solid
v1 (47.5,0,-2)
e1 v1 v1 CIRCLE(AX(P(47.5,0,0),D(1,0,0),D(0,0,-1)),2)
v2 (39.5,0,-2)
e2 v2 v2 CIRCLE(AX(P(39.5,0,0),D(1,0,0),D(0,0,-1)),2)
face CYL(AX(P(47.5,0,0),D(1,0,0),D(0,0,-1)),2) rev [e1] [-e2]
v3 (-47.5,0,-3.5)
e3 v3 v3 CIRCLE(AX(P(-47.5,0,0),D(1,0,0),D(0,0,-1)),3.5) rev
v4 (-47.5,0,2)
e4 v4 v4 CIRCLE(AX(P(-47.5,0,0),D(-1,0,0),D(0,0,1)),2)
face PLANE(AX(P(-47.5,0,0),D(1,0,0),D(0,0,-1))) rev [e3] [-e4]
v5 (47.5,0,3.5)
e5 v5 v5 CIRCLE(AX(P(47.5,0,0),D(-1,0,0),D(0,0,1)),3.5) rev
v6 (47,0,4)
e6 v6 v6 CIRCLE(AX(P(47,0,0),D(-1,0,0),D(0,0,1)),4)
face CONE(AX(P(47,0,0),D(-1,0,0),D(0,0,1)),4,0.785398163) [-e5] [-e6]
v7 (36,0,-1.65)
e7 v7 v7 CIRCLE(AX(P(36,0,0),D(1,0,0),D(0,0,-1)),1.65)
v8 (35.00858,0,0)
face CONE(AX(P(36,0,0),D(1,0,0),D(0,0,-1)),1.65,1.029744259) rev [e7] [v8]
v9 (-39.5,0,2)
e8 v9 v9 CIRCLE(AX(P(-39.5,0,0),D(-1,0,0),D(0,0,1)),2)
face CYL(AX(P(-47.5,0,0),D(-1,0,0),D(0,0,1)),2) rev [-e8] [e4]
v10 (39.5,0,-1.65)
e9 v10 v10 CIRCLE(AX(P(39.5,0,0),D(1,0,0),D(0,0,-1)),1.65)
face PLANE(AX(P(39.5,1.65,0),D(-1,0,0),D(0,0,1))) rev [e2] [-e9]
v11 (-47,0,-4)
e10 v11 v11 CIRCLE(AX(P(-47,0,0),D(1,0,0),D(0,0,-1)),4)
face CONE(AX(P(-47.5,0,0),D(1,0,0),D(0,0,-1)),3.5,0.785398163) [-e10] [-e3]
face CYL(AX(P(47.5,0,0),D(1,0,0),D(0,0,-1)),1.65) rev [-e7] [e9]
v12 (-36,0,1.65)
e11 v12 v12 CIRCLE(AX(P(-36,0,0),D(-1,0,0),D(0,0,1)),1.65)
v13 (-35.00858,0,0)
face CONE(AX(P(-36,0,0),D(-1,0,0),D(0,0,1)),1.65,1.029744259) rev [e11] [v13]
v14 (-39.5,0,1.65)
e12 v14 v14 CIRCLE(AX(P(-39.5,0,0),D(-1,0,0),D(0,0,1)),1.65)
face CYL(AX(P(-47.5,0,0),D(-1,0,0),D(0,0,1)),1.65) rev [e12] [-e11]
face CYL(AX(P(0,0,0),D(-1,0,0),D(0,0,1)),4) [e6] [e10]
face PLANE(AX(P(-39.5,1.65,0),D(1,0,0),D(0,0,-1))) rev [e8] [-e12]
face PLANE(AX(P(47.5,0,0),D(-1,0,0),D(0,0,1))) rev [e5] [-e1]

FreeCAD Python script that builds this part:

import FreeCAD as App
import Part
import Sketcher

V = App.Vector
Q = App.Units.Quantity


def edges_at(feature, points):
    """Names of the edges that pass closest to the given points."""
    edges = feature.Shape.Edges
    near = lambda p: min(range(len(edges)), key=lambda i: edges[i].distToShape(Part.Vertex(*p))[0])
    return sorted({f"Edge{near(p) + 1}" for p in points})

doc = App.newDocument("Part")
params = doc.addObject("Spreadsheet::Sheet", "Params")
for row, (alias, value) in enumerate([
    ("sketch1_width", "95 mm"),
    ("sketch1_height", "4 mm"),
    ("revolution_angle", "360 deg"),
    ("sketch2_diameter", "3.3 mm"),
    ("hole_diameter", "3.3 mm"),
    ("hole_depth", "11.5 mm"),
    ("hole_cbore_diameter", "4 mm"),
    ("hole_cbore_depth", "8 mm"),
    ("sketch3_diameter", "3.3 mm"),
    ("hole2_diameter", "3.3 mm"),
    ("hole2_depth", "11.5 mm"),
    ("hole2_cbore_diameter", "4 mm"),
    ("hole2_cbore_depth", "8 mm"),
    ("chamfer_size", "0.5 mm"),
], start=1):
    params.set(f"A{row}", alias)
    params.set(f"B{row}", "=" + value)
    params.setAlias(f"B{row}", alias)

body = doc.addObject("PartDesign::Body", "Body")

# Sketch on XY plane
sketch1 = body.newObject("Sketcher::SketchObject", "Sketch")
sketch1.AttachmentSupport = (doc.getObject("XY_Plane"), [""])
sketch1.MapMode = "FlatFace"
sketch1.addGeometry(Part.LineSegment(V(-47.5, 4, 0), V(-47.5, 0, 0)), False)
sketch1.addGeometry(Part.LineSegment(V(-47.5, 0, 0), V(47.5, 0, 0)), False)
sketch1.addGeometry(Part.LineSegment(V(47.5, 0, 0), V(47.5, 4, 0)), False)
sketch1.addGeometry(Part.LineSegment(V(47.5, 4, 0), V(-47.5, 4, 0)), False)
sketch1.addConstraint(Sketcher.Constraint("Coincident", 0, 2, 1, 1))
sketch1.addConstraint(Sketcher.Constraint("Coincident", 1, 2, 2, 1))
sketch1.addConstraint(Sketcher.Constraint("Coincident", 2, 2, 3, 1))
sketch1.addConstraint(Sketcher.Constraint("Coincident", 3, 2, 0, 1))
sketch1.addConstraint(Sketcher.Constraint("Vertical", 0))
sketch1.addConstraint(Sketcher.Constraint("Horizontal", 1))
sketch1.addConstraint(Sketcher.Constraint("Vertical", 2))
sketch1.addConstraint(Sketcher.Constraint("Horizontal", 3))
sketch1.addConstraint(Sketcher.Constraint("Symmetric", 0, 2, 1, 2, -1, 1))
sketch1.addConstraint(Sketcher.Constraint("DistanceX", 1, 1, 1, 2, Q("95 mm")))
sketch1.addConstraint(Sketcher.Constraint("DistanceY", 0, 2, 0, 1, Q("4 mm")))
sketch1.setExpression("Constraints[9]", "Params.sketch1_width")
sketch1.setExpression("Constraints[10]", "Params.sketch1_height")
revolution = body.newObject("PartDesign::Revolution", "Revolution")
revolution.Profile = sketch1
revolution.ReferenceAxis = (sketch1, ["H_Axis"])
revolution.setExpression("Angle", "Params.revolution_angle")

# Sketch on YZ plane
sketch2 = body.newObject("Sketcher::SketchObject", "Sketch001")
sketch2.AttachmentSupport = (doc.getObject("YZ_Plane"), [""])
sketch2.MapMode = "FlatFace"
sketch2.AttachmentOffset = App.Placement(V(0, 0, 47.5), App.Rotation())
sketch2.addGeometry(Part.Circle(V(0, 0, 0), V(0, 0, 1), 1.65), False)
sketch2.addConstraint(Sketcher.Constraint("Coincident", 0, 3, -1, 1))
sketch2.addConstraint(Sketcher.Constraint("Diameter", 0, Q("3.3 mm")))
sketch2.setExpression("Constraints[1]", "Params.sketch2_diameter")
doc.recompute()
hole = body.newObject("PartDesign::Hole", "Hole")
hole.Profile = sketch2
hole.ThreadType = "None"
hole.setExpression("Diameter", "Params.hole_diameter")
hole.DepthType = "Dimension"
hole.setExpression("Depth", "Params.hole_depth")
hole.DrillPoint = "Angled"
hole.DrillPointAngle = 118
hole.HoleCutType = "Counterbore"
hole.setExpression("HoleCutDiameter", "Params.hole_cbore_diameter")
hole.setExpression("HoleCutDepth", "Params.hole_cbore_depth")

# Sketch on YZ plane
sketch3 = body.newObject("Sketcher::SketchObject", "Sketch002")
sketch3.AttachmentSupport = (doc.getObject("YZ_Plane"), [""])
sketch3.MapMode = "FlatFace"
sketch3.AttachmentOffset = App.Placement(V(0, 0, -47.5), App.Rotation())
sketch3.addGeometry(Part.Circle(V(0, 0, 0), V(0, 0, 1), 1.65), False)
sketch3.addConstraint(Sketcher.Constraint("Coincident", 0, 3, -1, 1))
sketch3.addConstraint(Sketcher.Constraint("Diameter", 0, Q("3.3 mm")))
sketch3.setExpression("Constraints[1]", "Params.sketch3_diameter")
doc.recompute()
hole2 = body.newObject("PartDesign::Hole", "Hole001")
hole2.Profile = sketch3
hole2.ThreadType = "None"
hole2.setExpression("Diameter", "Params.hole2_diameter")
hole2.DepthType = "Dimension"
hole2.setExpression("Depth", "Params.hole2_depth")
hole2.DrillPoint = "Angled"
hole2.DrillPointAngle = 118
hole2.HoleCutType = "Counterbore"
hole2.setExpression("HoleCutDiameter", "Params.hole2_cbore_diameter")
hole2.setExpression("HoleCutDepth", "Params.hole2_cbore_depth")
hole2.Reversed = True
doc.recompute()

chamfer = body.newObject("PartDesign::Chamfer", "Chamfer")
chamfer.Base = (hole2, edges_at(hole2, [(47.5, 0, -4), (-47.5, 0, -4)]))
chamfer.setExpression("Size", "Params.chamfer_size")

doc.recompute()
